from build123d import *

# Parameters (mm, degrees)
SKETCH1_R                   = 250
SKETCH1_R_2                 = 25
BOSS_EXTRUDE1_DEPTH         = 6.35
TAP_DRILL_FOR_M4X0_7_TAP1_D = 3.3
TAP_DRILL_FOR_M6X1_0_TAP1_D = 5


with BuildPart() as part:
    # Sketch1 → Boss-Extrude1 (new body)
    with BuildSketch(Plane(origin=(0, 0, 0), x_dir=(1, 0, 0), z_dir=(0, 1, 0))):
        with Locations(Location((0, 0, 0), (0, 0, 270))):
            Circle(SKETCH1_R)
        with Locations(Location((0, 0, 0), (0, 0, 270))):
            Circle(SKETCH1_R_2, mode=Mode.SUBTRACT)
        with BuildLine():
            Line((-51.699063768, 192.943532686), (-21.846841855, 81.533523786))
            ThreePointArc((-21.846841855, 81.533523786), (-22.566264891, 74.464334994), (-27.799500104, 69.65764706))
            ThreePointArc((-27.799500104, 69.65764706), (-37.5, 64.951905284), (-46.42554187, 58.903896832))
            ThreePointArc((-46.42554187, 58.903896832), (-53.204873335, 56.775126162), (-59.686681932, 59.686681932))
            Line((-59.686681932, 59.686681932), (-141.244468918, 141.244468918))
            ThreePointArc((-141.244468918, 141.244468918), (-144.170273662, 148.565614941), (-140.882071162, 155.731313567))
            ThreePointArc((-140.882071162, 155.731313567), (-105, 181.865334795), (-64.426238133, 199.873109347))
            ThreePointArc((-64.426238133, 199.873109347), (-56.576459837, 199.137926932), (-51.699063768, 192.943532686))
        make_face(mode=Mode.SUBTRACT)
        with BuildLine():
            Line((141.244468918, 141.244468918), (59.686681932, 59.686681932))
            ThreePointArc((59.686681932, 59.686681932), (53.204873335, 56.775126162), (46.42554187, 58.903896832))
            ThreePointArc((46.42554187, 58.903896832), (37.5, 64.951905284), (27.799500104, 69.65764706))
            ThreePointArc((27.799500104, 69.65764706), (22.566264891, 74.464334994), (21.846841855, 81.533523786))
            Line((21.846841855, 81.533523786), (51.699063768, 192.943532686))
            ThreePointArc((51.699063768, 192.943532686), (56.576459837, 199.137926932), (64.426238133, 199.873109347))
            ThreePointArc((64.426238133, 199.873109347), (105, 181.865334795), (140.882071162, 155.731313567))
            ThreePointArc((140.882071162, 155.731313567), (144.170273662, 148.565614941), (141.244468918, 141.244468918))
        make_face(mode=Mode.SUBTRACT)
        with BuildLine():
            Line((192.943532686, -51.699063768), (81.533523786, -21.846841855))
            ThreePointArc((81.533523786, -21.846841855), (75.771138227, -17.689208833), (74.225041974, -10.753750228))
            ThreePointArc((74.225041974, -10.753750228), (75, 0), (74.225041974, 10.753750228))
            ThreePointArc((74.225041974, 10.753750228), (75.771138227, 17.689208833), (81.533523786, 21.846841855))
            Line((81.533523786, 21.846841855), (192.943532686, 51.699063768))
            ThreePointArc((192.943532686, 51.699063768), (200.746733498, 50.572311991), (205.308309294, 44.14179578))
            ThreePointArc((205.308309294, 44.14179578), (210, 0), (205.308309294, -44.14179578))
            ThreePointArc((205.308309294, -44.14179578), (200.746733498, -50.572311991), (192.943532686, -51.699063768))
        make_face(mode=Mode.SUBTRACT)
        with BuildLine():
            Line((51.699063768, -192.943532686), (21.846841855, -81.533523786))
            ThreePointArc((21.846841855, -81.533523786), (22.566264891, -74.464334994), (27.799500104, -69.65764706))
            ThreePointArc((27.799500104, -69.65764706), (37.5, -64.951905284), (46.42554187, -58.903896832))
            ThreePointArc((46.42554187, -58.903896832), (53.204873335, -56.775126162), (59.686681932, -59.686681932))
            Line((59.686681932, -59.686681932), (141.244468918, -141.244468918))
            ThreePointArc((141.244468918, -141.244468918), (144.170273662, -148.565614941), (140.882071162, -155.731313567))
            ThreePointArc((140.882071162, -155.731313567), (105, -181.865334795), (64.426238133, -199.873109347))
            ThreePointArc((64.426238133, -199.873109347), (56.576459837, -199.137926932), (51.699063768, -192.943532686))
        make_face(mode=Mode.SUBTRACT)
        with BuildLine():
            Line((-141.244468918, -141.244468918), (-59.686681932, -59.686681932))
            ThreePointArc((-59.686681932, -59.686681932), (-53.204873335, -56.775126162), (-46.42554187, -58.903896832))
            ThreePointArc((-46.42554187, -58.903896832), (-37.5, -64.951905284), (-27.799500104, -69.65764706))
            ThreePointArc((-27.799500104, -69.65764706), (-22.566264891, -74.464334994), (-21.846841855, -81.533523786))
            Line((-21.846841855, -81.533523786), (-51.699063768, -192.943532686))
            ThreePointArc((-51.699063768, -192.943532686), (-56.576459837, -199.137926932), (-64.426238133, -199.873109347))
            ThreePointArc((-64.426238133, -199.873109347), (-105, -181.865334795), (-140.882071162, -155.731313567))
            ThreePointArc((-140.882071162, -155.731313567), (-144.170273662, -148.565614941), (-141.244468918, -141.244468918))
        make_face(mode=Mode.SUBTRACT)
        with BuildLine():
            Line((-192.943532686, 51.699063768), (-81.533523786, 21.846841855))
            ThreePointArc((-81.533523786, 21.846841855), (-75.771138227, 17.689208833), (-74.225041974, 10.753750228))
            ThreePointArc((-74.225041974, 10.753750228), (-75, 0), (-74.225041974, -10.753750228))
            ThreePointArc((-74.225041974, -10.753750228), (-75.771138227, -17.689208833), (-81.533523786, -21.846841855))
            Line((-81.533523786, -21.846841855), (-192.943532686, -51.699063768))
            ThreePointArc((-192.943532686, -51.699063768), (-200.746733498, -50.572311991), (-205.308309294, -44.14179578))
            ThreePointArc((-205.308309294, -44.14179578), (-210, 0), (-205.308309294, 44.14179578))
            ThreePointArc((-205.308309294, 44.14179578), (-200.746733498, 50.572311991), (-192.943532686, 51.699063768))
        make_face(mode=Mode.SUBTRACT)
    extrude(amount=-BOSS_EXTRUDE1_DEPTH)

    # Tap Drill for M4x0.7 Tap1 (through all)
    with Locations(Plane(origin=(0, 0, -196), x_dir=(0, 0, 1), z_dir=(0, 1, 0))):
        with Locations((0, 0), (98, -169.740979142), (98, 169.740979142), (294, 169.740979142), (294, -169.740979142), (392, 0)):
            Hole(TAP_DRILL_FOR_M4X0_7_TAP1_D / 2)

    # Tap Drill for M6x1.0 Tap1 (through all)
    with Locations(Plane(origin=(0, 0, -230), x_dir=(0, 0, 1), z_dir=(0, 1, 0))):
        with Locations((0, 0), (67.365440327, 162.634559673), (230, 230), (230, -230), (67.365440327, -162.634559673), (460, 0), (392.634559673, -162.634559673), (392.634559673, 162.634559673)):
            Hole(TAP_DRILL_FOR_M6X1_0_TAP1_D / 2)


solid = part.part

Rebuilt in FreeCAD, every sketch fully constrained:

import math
import FreeCAD as App
import Part
import Sketcher

V = App.Vector
Q = App.Units.Quantity

doc = App.newDocument("Part")
params = doc.addObject("Spreadsheet::Sheet", "Params")
for row, (alias, value) in enumerate([
    ("sketch1_diameter", "500 mm"),
    ("sketch1_diameter2", "50 mm"),
    ("sketch1_radius", "10 mm"),
    ("sketch1_radius2", "75 mm"),
    ("sketch1_radius3", "210 mm"),
    ("pad1_length", "6.35 mm"),
    ("sketch2_diameter", "3.3 mm"),
    ("hole_diameter", "3.3 mm"),
    ("sketch3_diameter", "5 mm"),
    ("hole2_diameter", "5 mm"),
], start=1):
    params.set(f"A{row}", alias)
    params.set(f"B{row}", "=" + value)
    params.setAlias(f"B{row}", alias)

body = doc.addObject("PartDesign::Body", "Body")

sketch1 = doc.addObject("Sketcher::SketchObject", "Sketch")
body.addObject(sketch1)
sketch1.AttachmentSupport = (doc.XZ_Plane, [""])
sketch1.MapMode = "FlatFace"
sketch1.addGeometry(Part.Circle(V(0, 0, 0), V(0, 0, 1), 250), False)
sketch1.addGeometry(Part.ArcOfCircle(Part.Circle(V(-61, -190, 0), V(0, 0, 1), 10), math.radians(-108), math.radians(-15)), False)
sketch1.addGeometry(Part.LineSegment(V(-52, -193, 0), V(-22, -82, 0)), False)
sketch1.addGeometry(Part.ArcOfCircle(Part.Circle(V(-32, -79, 0), V(0, 0, 1), 10), math.radians(-15), math.radians(68)), False)
sketch1.addGeometry(Part.ArcOfCircle(Part.Circle(V(0, 0, 0), V(0, 0, 1), 75), math.radians(-128.24), math.radians(-111.76)), False)
sketch1.addGeometry(Part.ArcOfCircle(Part.Circle(V(-53, -67, 0), V(0, 0, 1), 10), math.radians(52), math.radians(135)), False)
sketch1.addGeometry(Part.LineSegment(V(-60, -60, 0), V(-141, -141, 0)), False)
sketch1.addGeometry(Part.ArcOfCircle(Part.Circle(V(-134, -148, 0), V(0, 0, 1), 10), math.radians(135), math.radians(228)), False)
sketch1.addGeometry(Part.ArcOfCircle(Part.Circle(V(0, 0, 0), V(0, 0, 1), 210), math.radians(-132), math.radians(-108)), False)
sketch1.addGeometry(Part.ArcOfCircle(Part.Circle(V(-196, -42, 0), V(0, 0, 1), 10), math.radians(-168), math.radians(-75)), False)
sketch1.addGeometry(Part.LineSegment(V(-193, -52, 0), V(-82, -22, 0)), False)
sketch1.addGeometry(Part.ArcOfCircle(Part.Circle(V(-84, -12, 0), V(0, 0, 1), 10), math.radians(-75), math.radians(8)), False)
sketch1.addGeometry(Part.ArcOfCircle(Part.Circle(V(0, 0, 0), V(0, 0, 1), 75), math.radians(171.76), math.radians(188.24)), False)
sketch1.addGeometry(Part.ArcOfCircle(Part.Circle(V(-84, 12, 0), V(0, 0, 1), 10), math.radians(-8), math.radians(75)), False)
sketch1.addGeometry(Part.LineSegment(V(-82, 22, 0), V(-193, 52, 0)), False)
sketch1.addGeometry(Part.ArcOfCircle(Part.Circle(V(-196, 42, 0), V(0, 0, 1), 10), math.radians(75), math.radians(168)), False)
sketch1.addGeometry(Part.ArcOfCircle(Part.Circle(V(0, 0, 0), V(0, 0, 1), 210), math.radians(168), math.radians(192)), False)
sketch1.addGeometry(Part.Circle(V(0, 0, 0), V(0, 0, 1), 25), False)
sketch1.addGeometry(Part.ArcOfCircle(Part.Circle(V(-134, 148, 0), V(0, 0, 1), 10), math.radians(132), math.radians(225)), False)
sketch1.addGeometry(Part.LineSegment(V(-141, 141, 0), V(-60, 60, 0)), False)
sketch1.addGeometry(Part.ArcOfCircle(Part.Circle(V(-53, 67, 0), V(0, 0, 1), 10), math.radians(-135), math.radians(-52)), False)
sketch1.addGeometry(Part.ArcOfCircle(Part.Circle(V(0, 0, 0), V(0, 0, 1), 75), math.radians(111.76), math.radians(128.24)), False)
sketch1.addGeometry(Part.ArcOfCircle(Part.Circle(V(-32, 79, 0), V(0, 0, 1), 10), math.radians(-68), math.radians(15)), False)
sketch1.addGeometry(Part.LineSegment(V(-22, 82, 0), V(-52, 193, 0)), False)
sketch1.addGeometry(Part.ArcOfCircle(Part.Circle(V(-61, 190, 0), V(0, 0, 1), 10), math.radians(15), math.radians(108)), False)
sketch1.addGeometry(Part.ArcOfCircle(Part.Circle(V(0, 0, 0), V(0, 0, 1), 210), math.radians(108), math.radians(132)), False)
sketch1.addGeometry(Part.ArcOfCircle(Part.Circle(V(134, -148, 0), V(0, 0, 1), 10), math.radians(-48), math.radians(45)), False)
sketch1.addGeometry(Part.LineSegment(V(141, -141, 0), V(60, -60, 0)), False)
sketch1.addGeometry(Part.ArcOfCircle(Part.Circle(V(53, -67, 0), V(0, 0, 1), 10), math.radians(45), math.radians(128)), False)
sketch1.addGeometry(Part.ArcOfCircle(Part.Circle(V(0, 0, 0), V(0, 0, 1), 75), math.radians(-68.24), math.radians(-51.76)), False)
sketch1.addGeometry(Part.ArcOfCircle(Part.Circle(V(32, -79, 0), V(0, 0, 1), 10), math.radians(112), math.radians(195)), False)
sketch1.addGeometry(Part.LineSegment(V(22, -82, 0), V(52, -193, 0)), False)
sketch1.addGeometry(Part.ArcOfCircle(Part.Circle(V(61, -190, 0), V(0, 0, 1), 10), math.radians(-165), math.radians(-72)), False)
sketch1.addGeometry(Part.ArcOfCircle(Part.Circle(V(0, 0, 0), V(0, 0, 1), 210), math.radians(-72), math.radians(-48)), False)
sketch1.addGeometry(Part.ArcOfCircle(Part.Circle(V(196, 42, 0), V(0, 0, 1), 10), math.radians(12), math.radians(105)), False)
sketch1.addGeometry(Part.LineSegment(V(193, 52, 0), V(82, 22, 0)), False)
sketch1.addGeometry(Part.ArcOfCircle(Part.Circle(V(84, 12, 0), V(0, 0, 1), 10), math.radians(105), math.radians(188)), False)
sketch1.addGeometry(Part.ArcOfCircle(Part.Circle(V(0, 0, 0), V(0, 0, 1), 75), math.radians(-8.24), math.radians(8.24)), False)
sketch1.addGeometry(Part.ArcOfCircle(Part.Circle(V(84, -12, 0), V(0, 0, 1), 10), math.radians(172), math.radians(255)), False)
sketch1.addGeometry(Part.LineSegment(V(82, -22, 0), V(193, -52, 0)), False)
sketch1.addGeometry(Part.ArcOfCircle(Part.Circle(V(196, -42, 0), V(0, 0, 1), 10), math.radians(-105), math.radians(-12)), False)
sketch1.addGeometry(Part.ArcOfCircle(Part.Circle(V(0, 0, 0), V(0, 0, 1), 210), math.radians(-12), math.radians(12)), False)
sketch1.addGeometry(Part.ArcOfCircle(Part.Circle(V(61, 190, 0), V(0, 0, 1), 10), math.radians(72), math.radians(165)), False)
sketch1.addGeometry(Part.LineSegment(V(52, 193, 0), V(22, 82, 0)), False)
sketch1.addGeometry(Part.ArcOfCircle(Part.Circle(V(32, 79, 0), V(0, 0, 1), 10), math.radians(165), math.radians(248)), False)
sketch1.addGeometry(Part.ArcOfCircle(Part.Circle(V(0, 0, 0), V(0, 0, 1), 75), math.radians(51.76), math.radians(68.24)), False)
sketch1.addGeometry(Part.ArcOfCircle(Part.Circle(V(53, 67, 0), V(0, 0, 1), 10), math.radians(-128), math.radians(-45)), False)
sketch1.addGeometry(Part.LineSegment(V(60, 60, 0), V(141, 141, 0)), False)
sketch1.addGeometry(Part.ArcOfCircle(Part.Circle(V(134, 148, 0), V(0, 0, 1), 10), math.radians(-45), math.radians(48)), False)
sketch1.addGeometry(Part.ArcOfCircle(Part.Circle(V(0, 0, 0), V(0, 0, 1), 210), math.radians(48), math.radians(72)), False)
sketch1.addConstraint(Sketcher.Constraint("Tangent", 1, 2, 2, 1))
sketch1.addConstraint(Sketcher.Constraint("Tangent", 2, 2, 3, 1))
sketch1.addConstraint(Sketcher.Constraint("Tangent", 3, 2, 4, 2))
sketch1.addConstraint(Sketcher.Constraint("Tangent", 4, 1, 5, 1))
sketch1.addConstraint(Sketcher.Constraint("Tangent", 5, 2, 6, 1))
sketch1.addConstraint(Sketcher.Constraint("Tangent", 6, 2, 7, 1))
sketch1.addConstraint(Sketcher.Constraint("Tangent", 7, 2, 8, 1))
sketch1.addConstraint(Sketcher.Constraint("Tangent", 8, 2, 1, 1))
sketch1.addConstraint(Sketcher.Constraint("Tangent", 9, 2, 10, 1))
sketch1.addConstraint(Sketcher.Constraint("Tangent", 10, 2, 11, 1))
sketch1.addConstraint(Sketcher.Constraint("Tangent", 11, 2, 12, 2))
sketch1.addConstraint(Sketcher.Constraint("Tangent", 12, 1, 13, 1))
sketch1.addConstraint(Sketcher.Constraint("Tangent", 13, 2, 14, 1))
sketch1.addConstraint(Sketcher.Constraint("Tangent", 14, 2, 15, 1))
sketch1.addConstraint(Sketcher.Constraint("Tangent", 15, 2, 16, 1))
sketch1.addConstraint(Sketcher.Constraint("Tangent", 16, 2, 9, 1))
sketch1.addConstraint(Sketcher.Constraint("Tangent", 18, 2, 19, 1))
sketch1.addConstraint(Sketcher.Constraint("Tangent", 19, 2, 20, 1))
sketch1.addConstraint(Sketcher.Constraint("Tangent", 20, 2, 21, 2))
sketch1.addConstraint(Sketcher.Constraint("Tangent", 21, 1, 22, 1))
sketch1.addConstraint(Sketcher.Constraint("Tangent", 22, 2, 23, 1))
sketch1.addConstraint(Sketcher.Constraint("Tangent", 23, 2, 24, 1))
sketch1.addConstraint(Sketcher.Constraint("Tangent", 24, 2, 25, 1))
sketch1.addConstraint(Sketcher.Constraint("Tangent", 25, 2, 18, 1))
sketch1.addConstraint(Sketcher.Constraint("Tangent", 26, 2, 27, 1))
sketch1.addConstraint(Sketcher.Constraint("Tangent", 27, 2, 28, 1))
sketch1.addConstraint(Sketcher.Constraint("Tangent", 28, 2, 29, 2))
sketch1.addConstraint(Sketcher.Constraint("Tangent", 29, 1, 30, 1))
sketch1.addConstraint(Sketcher.Constraint("Tangent", 30, 2, 31, 1))
sketch1.addConstraint(Sketcher.Constraint("Tangent", 31, 2, 32, 1))
sketch1.addConstraint(Sketcher.Constraint("Tangent", 32, 2, 33, 1))
sketch1.addConstraint(Sketcher.Constraint("Tangent", 33, 2, 26, 1))
sketch1.addConstraint(Sketcher.Constraint("Tangent", 34, 2, 35, 1))
sketch1.addConstraint(Sketcher.Constraint("Tangent", 35, 2, 36, 1))
sketch1.addConstraint(Sketcher.Constraint("Tangent", 36, 2, 37, 2))
sketch1.addConstraint(Sketcher.Constraint("Tangent", 37, 1, 38, 1))
sketch1.addConstraint(Sketcher.Constraint("Tangent", 38, 2, 39, 1))
sketch1.addConstraint(Sketcher.Constraint("Tangent", 39, 2, 40, 1))
sketch1.addConstraint(Sketcher.Constraint("Tangent", 40, 2, 41, 1))
sketch1.addConstraint(Sketcher.Constraint("Tangent", 41, 2, 34, 1))
sketch1.addConstraint(Sketcher.Constraint("Tangent", 42, 2, 43, 1))
sketch1.addConstraint(Sketcher.Constraint("Tangent", 43, 2, 44, 1))
sketch1.addConstraint(Sketcher.Constraint("Tangent", 44, 2, 45, 2))
sketch1.addConstraint(Sketcher.Constraint("Tangent", 45, 1, 46, 1))
sketch1.addConstraint(Sketcher.Constraint("Tangent", 46, 2, 47, 1))
sketch1.addConstraint(Sketcher.Constraint("Tangent", 47, 2, 48, 1))
sketch1.addConstraint(Sketcher.Constraint("Tangent", 48, 2, 49, 1))
sketch1.addConstraint(Sketcher.Constraint("Tangent", 49, 2, 42, 1))
sketch1.addConstraint(Sketcher.Constraint("Coincident", 0, 3, -1, 1))
sketch1.addConstraint(Sketcher.Constraint("Coincident", 4, 3, -1, 1))
sketch1.addConstraint(Sketcher.Constraint("Coincident", 8, 3, -1, 1))
sketch1.addConstraint(Sketcher.Constraint("Coincident", 12, 3, -1, 1))
sketch1.addConstraint(Sketcher.Constraint("Coincident", 16, 3, -1, 1))
sketch1.addConstraint(Sketcher.Constraint("Coincident", 17, 3, -1, 1))
sketch1.addConstraint(Sketcher.Constraint("Coincident", 21, 3, -1, 1))
sketch1.addConstraint(Sketcher.Constraint("Coincident", 25, 3, -1, 1))
sketch1.addConstraint(Sketcher.Constraint("Coincident", 29, 3, -1, 1))
sketch1.addConstraint(Sketcher.Constraint("Coincident", 33, 3, -1, 1))
sketch1.addConstraint(Sketcher.Constraint("Coincident", 37, 3, -1, 1))
sketch1.addConstraint(Sketcher.Constraint("Coincident", 41, 3, -1, 1))
sketch1.addConstraint(Sketcher.Constraint("Coincident", 45, 3, -1, 1))
sketch1.addConstraint(Sketcher.Constraint("Coincident", 49, 3, -1, 1))
sketch1.addConstraint(Sketcher.Constraint("Equal", 1, 3))
sketch1.addConstraint(Sketcher.Constraint("Equal", 3, 5))
sketch1.addConstraint(Sketcher.Constraint("Equal", 5, 7))
sketch1.addConstraint(Sketcher.Constraint("Equal", 7, 9))
sketch1.addConstraint(Sketcher.Constraint("Equal", 9, 11))
sketch1.addConstraint(Sketcher.Constraint("Equal", 4, 12))
sketch1.addConstraint(Sketcher.Constraint("Equal", 11, 13))
sketch1.addConstraint(Sketcher.Constraint("Equal", 13, 15))
sketch1.addConstraint(Sketcher.Constraint("Equal", 8, 16))
sketch1.addConstraint(Sketcher.Constraint("Equal", 15, 18))
sketch1.addConstraint(Sketcher.Constraint("Equal", 18, 20))
sketch1.addConstraint(Sketcher.Constraint("Equal", 12, 21))
sketch1.addConstraint(Sketcher.Constraint("Equal", 20, 22))
sketch1.addConstraint(Sketcher.Constraint("Equal", 22, 24))
sketch1.addConstraint(Sketcher.Constraint("Equal", 16, 25))
sketch1.addConstraint(Sketcher.Constraint("Equal", 24, 26))
sketch1.addConstraint(Sketcher.Constraint("Equal", 26, 28))
sketch1.addConstraint(Sketcher.Constraint("Equal", 21, 29))
sketch1.addConstraint(Sketcher.Constraint("Equal", 28, 30))
sketch1.addConstraint(Sketcher.Constraint("Equal", 30, 32))
sketch1.addConstraint(Sketcher.Constraint("Equal", 25, 33))
sketch1.addConstraint(Sketcher.Constraint("Equal", 32, 34))
sketch1.addConstraint(Sketcher.Constraint("Equal", 34, 36))
sketch1.addConstraint(Sketcher.Constraint("Equal", 29, 37))
sketch1.addConstraint(Sketcher.Constraint("Equal", 36, 38))
sketch1.addConstraint(Sketcher.Constraint("Equal", 38, 40))
sketch1.addConstraint(Sketcher.Constraint("Equal", 33, 41))
sketch1.addConstraint(Sketcher.Constraint("Equal", 40, 42))
sketch1.addConstraint(Sketcher.Constraint("Equal", 42, 44))
sketch1.addConstraint(Sketcher.Constraint("Equal", 37, 45))
sketch1.addConstraint(Sketcher.Constraint("Equal", 44, 46))
sketch1.addConstraint(Sketcher.Constraint("Equal", 46, 48))
sketch1.addConstraint(Sketcher.Constraint("Equal", 41, 49))
sketch1.addConstraint(Sketcher.Constraint("Symmetric", 18, 2, 26, 2, -1, 1))
sketch1.addConstraint(Sketcher.Constraint("Symmetric", 22, 2, 30, 2, -1, 1))
sketch1.addConstraint(Sketcher.Constraint("Symmetric", 9, 2, 34, 2, -1, 1))
sketch1.addConstraint(Sketcher.Constraint("Symmetric", 13, 2, 38, 2, -1, 1))
sketch1.addConstraint(Sketcher.Constraint("Symmetric", 1, 2, 42, 2, -1, 1))
sketch1.addConstraint(Sketcher.Constraint("Symmetric", 5, 2, 46, 2, -1, 1))
sketch1.addConstraint(Sketcher.Constraint("Symmetric", 6, 2, 26, 2, -2))
sketch1.addConstraint(Sketcher.Constraint("Symmetric", 2, 2, 30, 2, -2))
sketch1.addConstraint(Sketcher.Constraint("Symmetric", 14, 2, 34, 2, -2))
sketch1.addConstraint(Sketcher.Constraint("Perpendicular", 2, 14))
sketch1.addConstraint(Sketcher.Constraint("Perpendicular", 6, 19))
sketch1.addConstraint(Sketcher.Constraint("Equal", 2, 6))
sketch1.addConstraint(Sketcher.Constraint("Equal", 6, 10))
sketch1.addConstraint(Sketcher.Constraint("Diameter", 0, Q("500 mm")))
sketch1.addConstraint(Sketcher.Constraint("Diameter", 17, Q("50 mm")))
sketch1.addConstraint(Sketcher.Constraint("Radius", 1, Q("10 mm")))
sketch1.addConstraint(Sketcher.Constraint("Radius", 4, Q("75 mm")))
sketch1.addConstraint(Sketcher.Constraint("Radius", 8, Q("210 mm")))
sketch1.addConstraint(Sketcher.Constraint("Angle", 2, Q("75 deg")))
sketch1.addConstraint(Sketcher.Constraint("DistanceX", 3, 3, -1, 1, Q("31.5061 mm")))
sketch1.setExpression("Constraints[108]", "Params.sketch1_diameter")
sketch1.setExpression("Constraints[109]", "Params.sketch1_diameter2")
sketch1.setExpression("Constraints[110]", "Params.sketch1_radius")
sketch1.setExpression("Constraints[111]", "Params.sketch1_radius2")
sketch1.setExpression("Constraints[112]", "Params.sketch1_radius3")
pad1 = doc.addObject("PartDesign::Pad", "Pad")
body.addObject(pad1)
pad1.Profile = sketch1
pad1.setExpression("Length", "Params.pad1_length")

sketch2 = doc.addObject("Sketcher::SketchObject", "Sketch001")
body.addObject(sketch2)
sketch2.AttachmentSupport = (doc.XZ_Plane, [""])
sketch2.MapMode = "FlatFace"
sketch2.addGeometry(Part.Circle(V(0, -196, 0), V(0, 0, 1), 1.6), False)
sketch2.addGeometry(Part.Circle(V(-169.7, -98, 0), V(0, 0, 1), 1.6), False)
sketch2.addGeometry(Part.Circle(V(169.7, -98, 0), V(0, 0, 1), 1.6), False)
sketch2.addGeometry(Part.Circle(V(169.7, 98, 0), V(0, 0, 1), 1.6), False)
sketch2.addGeometry(Part.Circle(V(-169.7, 98, 0), V(0, 0, 1), 1.6), False)
sketch2.addGeometry(Part.Circle(V(0, 196, 0), V(0, 0, 1), 1.6), False)
sketch2.addConstraint(Sketcher.Constraint("Equal", 0, 1))
sketch2.addConstraint(Sketcher.Constraint("Equal", 1, 2))
sketch2.addConstraint(Sketcher.Constraint("Equal", 2, 3))
sketch2.addConstraint(Sketcher.Constraint("Equal", 3, 4))
sketch2.addConstraint(Sketcher.Constraint("Equal", 4, 5))
sketch2.addConstraint(Sketcher.Constraint("Symmetric", 1, 3, 3, 3, -1, 1))
sketch2.addConstraint(Sketcher.Constraint("Symmetric", 2, 3, 4, 3, -1, 1))
sketch2.addConstraint(Sketcher.Constraint("Symmetric", 0, 3, 5, 3, -1, 1))
sketch2.addConstraint(Sketcher.Constraint("Symmetric", 1, 3, 2, 3, -2))
sketch2.addConstraint(Sketcher.Constraint("PointOnObject", 0, 3, -2))
sketch2.addConstraint(Sketcher.Constraint("Diameter", 0, Q("3.3 mm")))
sketch2.addConstraint(Sketcher.Constraint("DistanceY", 0, 3, -1, 1, Q("196 mm")))
sketch2.addConstraint(Sketcher.Constraint("DistanceY", 1, 3, -1, 1, Q("98 mm")))
sketch2.addConstraint(Sketcher.Constraint("DistanceX", 1, 3, -1, 1, Q("169.740979 mm")))
sketch2.setExpression("Constraints[10]", "Params.sketch2_diameter")
doc.recompute()
hole = doc.addObject("PartDesign::Hole", "Hole")
body.addObject(hole)
hole.Profile = sketch2
hole.ThreadType = "None"
hole.setExpression("Diameter", "Params.hole_diameter")
hole.DepthType = "ThroughAll"
hole.Reversed = True

sketch3 = doc.addObject("Sketcher::SketchObject", "Sketch002")
body.addObject(sketch3)
sketch3.AttachmentSupport = (doc.XZ_Plane, [""])
sketch3.MapMode = "FlatFace"
sketch3.addGeometry(Part.Circle(V(0, -230, 0), V(0, 0, 1), 2.5), False)
sketch3.addGeometry(Part.Circle(V(162.6, -162.6, 0), V(0, 0, 1), 2.5), False)
sketch3.addGeometry(Part.Circle(V(230, 0, 0), V(0, 0, 1), 2.5), False)
sketch3.addGeometry(Part.Circle(V(-230, 0, 0), V(0, 0, 1), 2.5), False)
sketch3.addGeometry(Part.Circle(V(-162.6, -162.6, 0), V(0, 0, 1), 2.5), False)
sketch3.addGeometry(Part.Circle(V(0, 230, 0), V(0, 0, 1), 2.5), False)
sketch3.addGeometry(Part.Circle(V(-162.6, 162.6, 0), V(0, 0, 1), 2.5), False)
sketch3.addGeometry(Part.Circle(V(162.6, 162.6, 0), V(0, 0, 1), 2.5), False)
sketch3.addConstraint(Sketcher.Constraint("Equal", 0, 1))
sketch3.addConstraint(Sketcher.Constraint("Equal", 1, 2))
sketch3.addConstraint(Sketcher.Constraint("Equal", 2, 3))
sketch3.addConstraint(Sketcher.Constraint("Equal", 3, 4))
sketch3.addConstraint(Sketcher.Constraint("Equal", 4, 5))
sketch3.addConstraint(Sketcher.Constraint("Equal", 5, 6))
sketch3.addConstraint(Sketcher.Constraint("Equal", 6, 7))
sketch3.addConstraint(Sketcher.Constraint("Symmetric", 2, 3, 3, 3, -1, 1))
sketch3.addConstraint(Sketcher.Constraint("Symmetric", 0, 3, 5, 3, -1, 1))
sketch3.addConstraint(Sketcher.Constraint("Symmetric", 1, 3, 6, 3, -1, 1))
sketch3.addConstraint(Sketcher.Constraint("Symmetric", 4, 3, 7, 3, -1, 1))
sketch3.addConstraint(Sketcher.Constraint("Symmetric", 1, 3, 4, 3, -2))
sketch3.addConstraint(Sketcher.Constraint("PointOnObject", 0, 3, -2))
sketch3.addConstraint(Sketcher.Constraint("PointOnObject", 2, 3, -1))
sketch3.addConstraint(Sketcher.Constraint("Diameter", 0, Q("5 mm")))
sketch3.addConstraint(Sketcher.Constraint("DistanceY", 0, 3, -1, 1, Q("230 mm")))
sketch3.addConstraint(Sketcher.Constraint("DistanceX", -1, 1, 2, 3, Q("230 mm")))
sketch3.addConstraint(Sketcher.Constraint("DistanceX", -1, 1, 1, 3, Q("162.63456 mm")))
sketch3.addConstraint(Sketcher.Constraint("DistanceY", 1, 3, -1, 1, Q("162.63456 mm")))
sketch3.setExpression("Constraints[14]", "Params.sketch3_diameter")
doc.recompute()
hole2 = doc.addObject("PartDesign::Hole", "Hole001")
body.addObject(hole2)
hole2.Profile = sketch3
hole2.ThreadType = "None"
hole2.setExpression("Diameter", "Params.hole2_diameter")
hole2.DepthType = "ThroughAll"
hole2.Reversed = True

doc.recompute()
